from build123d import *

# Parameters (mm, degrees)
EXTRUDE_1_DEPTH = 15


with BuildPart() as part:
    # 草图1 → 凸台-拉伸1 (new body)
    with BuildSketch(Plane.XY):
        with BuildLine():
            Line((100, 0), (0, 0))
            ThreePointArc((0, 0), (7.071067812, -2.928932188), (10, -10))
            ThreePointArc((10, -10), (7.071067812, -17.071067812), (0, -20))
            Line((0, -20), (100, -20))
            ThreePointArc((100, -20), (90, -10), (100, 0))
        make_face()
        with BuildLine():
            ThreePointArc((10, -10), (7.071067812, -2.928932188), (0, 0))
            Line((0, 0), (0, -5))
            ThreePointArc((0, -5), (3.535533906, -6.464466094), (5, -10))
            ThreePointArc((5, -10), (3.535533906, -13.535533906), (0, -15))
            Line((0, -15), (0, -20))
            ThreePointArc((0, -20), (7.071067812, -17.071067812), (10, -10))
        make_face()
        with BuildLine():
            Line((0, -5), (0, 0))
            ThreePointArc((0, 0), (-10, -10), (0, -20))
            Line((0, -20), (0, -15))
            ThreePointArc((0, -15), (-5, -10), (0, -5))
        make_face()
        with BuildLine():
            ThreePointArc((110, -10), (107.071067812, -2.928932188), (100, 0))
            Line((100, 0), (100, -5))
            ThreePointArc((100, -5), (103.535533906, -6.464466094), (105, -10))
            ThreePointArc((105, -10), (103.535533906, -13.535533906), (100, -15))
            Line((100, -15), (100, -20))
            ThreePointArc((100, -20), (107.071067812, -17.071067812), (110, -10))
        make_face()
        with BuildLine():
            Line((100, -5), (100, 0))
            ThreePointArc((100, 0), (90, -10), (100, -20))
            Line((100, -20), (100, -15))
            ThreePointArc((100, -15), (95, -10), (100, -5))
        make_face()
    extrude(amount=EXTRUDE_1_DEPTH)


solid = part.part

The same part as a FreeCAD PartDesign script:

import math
import FreeCAD as App
import Part
import Sketcher

doc = App.newDocument("Part")
body = doc.addObject("PartDesign::Body", "Body")

# Sketch on XY plane
sketch1 = body.newObject("Sketcher::SketchObject", "Sketch")
sketch1.AttachmentSupport = (doc.getObject("XY_Plane"), [""])
sketch1.MapMode = "FlatFace"
sketch1.addGeometry([
    Part.LineSegment(App.Vector(100, 0, 0), App.Vector(0, 0, 0)),  # 0
    Part.ArcOfCircle(Part.Circle(App.Vector(0, -10, 0), App.Vector(0, 0, 1), 10), math.radians(90), math.radians(270)),  # 1
    Part.LineSegment(App.Vector(0, -20, 0), App.Vector(100, -20, 0)),  # 2
    Part.ArcOfCircle(Part.Circle(App.Vector(100, -10, 0), App.Vector(0, 0, 1), 10), math.radians(-90), math.radians(0)),  # 3
    Part.ArcOfCircle(Part.Circle(App.Vector(100, -10, 0), App.Vector(0, 0, 1), 10), math.radians(0), math.radians(90)),  # 4
    Part.ArcOfCircle(Part.Circle(App.Vector(0, -10, 0), App.Vector(0, 0, 1), 5), math.radians(-90), math.radians(0)),  # 5
    Part.ArcOfCircle(Part.Circle(App.Vector(0, -10, 0), App.Vector(0, 0, 1), 5), math.radians(90), math.radians(270)),  # 6
    Part.ArcOfCircle(Part.Circle(App.Vector(0, -10, 0), App.Vector(0, 0, 1), 5), math.radians(0), math.radians(90)),  # 7
    Part.ArcOfCircle(Part.Circle(App.Vector(100, -10, 0), App.Vector(0, 0, 1), 5), math.radians(90), math.radians(270)),  # 8
    Part.ArcOfCircle(Part.Circle(App.Vector(100, -10, 0), App.Vector(0, 0, 1), 5), math.radians(0), math.radians(90)),  # 9
    Part.ArcOfCircle(Part.Circle(App.Vector(100, -10, 0), App.Vector(0, 0, 1), 5), math.radians(-90), math.radians(0)),  # 10
], False)
sketch1.addConstraint([
    Sketcher.Constraint("Tangent", 0, 2, 1, 1),
    Sketcher.Constraint("Tangent", 1, 2, 2, 1),
    Sketcher.Constraint("Tangent", 2, 2, 3, 1),
    Sketcher.Constraint("Tangent", 3, 2, 4, 1),
    Sketcher.Constraint("Tangent", 4, 2, 0, 1),
    Sketcher.Constraint("Tangent", 5, 1, 6, 2),
    Sketcher.Constraint("Tangent", 6, 1, 7, 2),
    Sketcher.Constraint("Tangent", 7, 1, 5, 2),
    Sketcher.Constraint("Tangent", 8, 1, 9, 2),
    Sketcher.Constraint("Tangent", 9, 1, 10, 2),
    Sketcher.Constraint("Tangent", 10, 1, 8, 2),
    Sketcher.Constraint("Horizontal", 0),
    Sketcher.Constraint("Horizontal", 2),
    Sketcher.Constraint("Coincident", 0, 2, -1, 1),
    Sketcher.Constraint("Coincident", 5, 3, 1, 3),
    Sketcher.Constraint("Coincident", 8, 3, 3, 3),
    Sketcher.Constraint("Equal", 1, 3),
    Sketcher.Constraint("Equal", 7, 8),
    Sketcher.Constraint("PointOnObject", 5, 1, -2),
    Sketcher.Constraint("PointOnObject", 6, 1, -2),
    Sketcher.Constraint("Horizontal", 10, 3, 3, 2),
    Sketcher.Constraint("Horizontal", 3, 2, 7, 1),
    Sketcher.Constraint("Horizontal", 7, 1, 9, 1),
    Sketcher.Constraint("Vertical", 4, 2, 8, 1),
    Sketcher.Constraint("Vertical", 8, 1, 10, 1),
    Sketcher.Constraint("Radius", 1, 10.0),
    Sketcher.Constraint("Radius", 5, 5.0),
    Sketcher.Constraint("DistanceX", 0, 2, 0, 1, 100.0),
])
pad1 = body.newObject("PartDesign::Pad", "Pad")
pad1.Profile = sketch1
pad1.Length = 15

doc.recompute()
